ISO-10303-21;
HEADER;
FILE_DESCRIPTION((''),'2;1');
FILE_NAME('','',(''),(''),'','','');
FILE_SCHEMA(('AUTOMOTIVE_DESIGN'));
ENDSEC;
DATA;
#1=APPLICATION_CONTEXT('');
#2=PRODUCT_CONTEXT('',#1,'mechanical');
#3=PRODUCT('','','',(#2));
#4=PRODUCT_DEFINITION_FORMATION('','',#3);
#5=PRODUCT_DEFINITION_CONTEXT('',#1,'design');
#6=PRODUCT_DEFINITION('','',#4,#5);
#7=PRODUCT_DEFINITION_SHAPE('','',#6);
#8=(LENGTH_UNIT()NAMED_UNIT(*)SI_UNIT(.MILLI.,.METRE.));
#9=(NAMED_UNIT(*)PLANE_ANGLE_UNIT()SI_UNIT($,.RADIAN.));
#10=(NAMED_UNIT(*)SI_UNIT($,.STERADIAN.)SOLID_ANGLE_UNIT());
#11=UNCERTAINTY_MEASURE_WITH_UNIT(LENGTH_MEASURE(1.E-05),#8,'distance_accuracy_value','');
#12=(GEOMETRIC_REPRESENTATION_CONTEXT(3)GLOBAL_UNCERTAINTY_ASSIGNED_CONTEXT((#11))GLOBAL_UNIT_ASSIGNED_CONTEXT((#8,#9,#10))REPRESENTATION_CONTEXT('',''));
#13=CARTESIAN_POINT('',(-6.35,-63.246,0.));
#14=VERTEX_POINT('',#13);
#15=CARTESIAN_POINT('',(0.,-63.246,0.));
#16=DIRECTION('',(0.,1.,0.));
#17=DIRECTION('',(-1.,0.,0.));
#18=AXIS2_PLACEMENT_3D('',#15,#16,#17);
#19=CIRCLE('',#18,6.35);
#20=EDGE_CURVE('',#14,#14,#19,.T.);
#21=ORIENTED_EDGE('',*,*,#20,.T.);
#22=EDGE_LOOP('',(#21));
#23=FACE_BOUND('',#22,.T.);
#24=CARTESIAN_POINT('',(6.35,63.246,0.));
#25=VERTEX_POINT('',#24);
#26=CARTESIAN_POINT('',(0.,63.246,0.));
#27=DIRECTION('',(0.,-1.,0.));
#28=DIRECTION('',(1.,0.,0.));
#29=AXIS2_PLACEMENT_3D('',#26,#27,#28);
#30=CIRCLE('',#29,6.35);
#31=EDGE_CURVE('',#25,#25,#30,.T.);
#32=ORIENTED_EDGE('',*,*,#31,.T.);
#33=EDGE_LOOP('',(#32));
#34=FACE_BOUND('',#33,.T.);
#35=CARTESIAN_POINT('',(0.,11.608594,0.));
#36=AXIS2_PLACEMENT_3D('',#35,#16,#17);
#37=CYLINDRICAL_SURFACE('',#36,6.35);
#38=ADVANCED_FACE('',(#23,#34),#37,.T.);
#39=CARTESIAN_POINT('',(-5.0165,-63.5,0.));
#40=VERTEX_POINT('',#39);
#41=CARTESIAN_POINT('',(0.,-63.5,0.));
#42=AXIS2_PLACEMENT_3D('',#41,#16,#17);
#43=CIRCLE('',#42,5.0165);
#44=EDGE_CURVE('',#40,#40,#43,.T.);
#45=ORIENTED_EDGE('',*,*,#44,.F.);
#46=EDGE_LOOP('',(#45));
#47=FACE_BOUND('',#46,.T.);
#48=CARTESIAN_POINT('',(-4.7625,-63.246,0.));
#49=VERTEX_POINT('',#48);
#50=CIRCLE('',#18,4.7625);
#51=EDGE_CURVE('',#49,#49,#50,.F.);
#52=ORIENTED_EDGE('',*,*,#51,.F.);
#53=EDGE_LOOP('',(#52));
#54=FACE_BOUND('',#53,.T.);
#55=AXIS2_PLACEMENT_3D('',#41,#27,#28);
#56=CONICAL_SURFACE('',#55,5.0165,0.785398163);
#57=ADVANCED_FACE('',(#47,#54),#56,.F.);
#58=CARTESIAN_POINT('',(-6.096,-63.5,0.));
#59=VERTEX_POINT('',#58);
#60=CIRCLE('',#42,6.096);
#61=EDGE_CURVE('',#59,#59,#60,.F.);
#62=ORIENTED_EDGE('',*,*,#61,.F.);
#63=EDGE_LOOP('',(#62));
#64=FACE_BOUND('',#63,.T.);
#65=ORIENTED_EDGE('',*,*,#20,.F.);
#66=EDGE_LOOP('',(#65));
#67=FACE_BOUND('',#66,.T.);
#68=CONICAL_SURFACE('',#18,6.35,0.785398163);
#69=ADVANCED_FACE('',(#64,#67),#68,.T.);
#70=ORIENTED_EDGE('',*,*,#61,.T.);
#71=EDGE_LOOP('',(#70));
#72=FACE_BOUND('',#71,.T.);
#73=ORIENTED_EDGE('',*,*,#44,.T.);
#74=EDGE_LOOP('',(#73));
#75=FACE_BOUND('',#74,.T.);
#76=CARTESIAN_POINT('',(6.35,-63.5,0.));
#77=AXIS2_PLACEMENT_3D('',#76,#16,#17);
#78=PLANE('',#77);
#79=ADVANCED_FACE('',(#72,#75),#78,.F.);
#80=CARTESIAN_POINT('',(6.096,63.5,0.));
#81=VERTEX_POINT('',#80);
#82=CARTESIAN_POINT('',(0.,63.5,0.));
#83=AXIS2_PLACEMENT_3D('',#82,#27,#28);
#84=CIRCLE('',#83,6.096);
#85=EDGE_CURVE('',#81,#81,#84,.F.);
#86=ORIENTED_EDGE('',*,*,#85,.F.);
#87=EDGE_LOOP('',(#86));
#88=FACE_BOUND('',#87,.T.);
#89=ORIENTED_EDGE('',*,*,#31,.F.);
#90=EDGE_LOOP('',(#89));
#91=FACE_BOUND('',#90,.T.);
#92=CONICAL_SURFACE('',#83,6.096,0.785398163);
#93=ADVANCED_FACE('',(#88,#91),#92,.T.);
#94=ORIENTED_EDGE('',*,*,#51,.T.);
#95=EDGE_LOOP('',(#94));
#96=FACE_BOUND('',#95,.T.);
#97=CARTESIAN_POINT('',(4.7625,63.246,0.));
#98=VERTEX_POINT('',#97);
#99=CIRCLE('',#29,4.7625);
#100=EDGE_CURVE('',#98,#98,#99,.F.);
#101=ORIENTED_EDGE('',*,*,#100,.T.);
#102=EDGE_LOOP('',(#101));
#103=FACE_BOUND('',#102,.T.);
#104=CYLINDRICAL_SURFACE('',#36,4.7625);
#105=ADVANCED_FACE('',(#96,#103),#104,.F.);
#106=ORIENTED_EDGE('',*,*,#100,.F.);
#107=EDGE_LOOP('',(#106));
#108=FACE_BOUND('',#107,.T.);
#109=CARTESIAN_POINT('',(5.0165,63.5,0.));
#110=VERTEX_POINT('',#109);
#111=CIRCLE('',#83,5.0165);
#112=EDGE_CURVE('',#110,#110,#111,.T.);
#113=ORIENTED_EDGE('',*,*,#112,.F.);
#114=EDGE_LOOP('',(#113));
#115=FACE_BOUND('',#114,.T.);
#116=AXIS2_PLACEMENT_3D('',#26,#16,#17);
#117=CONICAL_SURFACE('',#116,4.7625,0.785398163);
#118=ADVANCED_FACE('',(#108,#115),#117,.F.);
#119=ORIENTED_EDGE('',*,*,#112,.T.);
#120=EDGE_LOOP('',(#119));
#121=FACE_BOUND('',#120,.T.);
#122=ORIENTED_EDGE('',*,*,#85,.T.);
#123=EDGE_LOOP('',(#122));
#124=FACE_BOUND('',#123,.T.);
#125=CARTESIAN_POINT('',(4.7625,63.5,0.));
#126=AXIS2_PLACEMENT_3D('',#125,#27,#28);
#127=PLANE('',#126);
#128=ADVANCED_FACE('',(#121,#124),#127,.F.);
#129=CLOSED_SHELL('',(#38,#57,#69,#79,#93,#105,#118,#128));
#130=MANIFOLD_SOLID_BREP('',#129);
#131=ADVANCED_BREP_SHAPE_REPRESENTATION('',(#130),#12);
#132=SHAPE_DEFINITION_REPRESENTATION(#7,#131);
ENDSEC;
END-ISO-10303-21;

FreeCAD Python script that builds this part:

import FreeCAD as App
import Part
import Sketcher
from FreeCAD import Vector
Q = App.Units.Quantity


def edges_at(feature, points):
    """Names of the edges that pass closest to the given points."""
    edges = feature.Shape.Edges
    near = lambda p: min(range(len(edges)), key=lambda i: edges[i].distToShape(Part.Vertex(*p))[0])
    return sorted({f"Edge{near(p) + 1}" for p in points})

doc = App.newDocument("Part")
body = doc.addObject("PartDesign::Body", "Body")

sketch1 = body.newObject("Sketcher::SketchObject", "Sketch")
sketch1.AttachmentSupport = (doc.getObject("XY_Plane"), [""])
sketch1.MapMode = "FlatFace"
sketch1.addGeometry([
    Part.LineSegment(Vector(4.8, 63.5, 0), Vector(4.8, -63.5, 0)),
    Part.LineSegment(Vector(4.8, -63.5, 0), Vector(6.3, -63.5, 0)),
    Part.LineSegment(Vector(6.3, -63.5, 0), Vector(6.3, 63.5, 0)),
    Part.LineSegment(Vector(6.3, 63.5, 0), Vector(4.8, 63.5, 0)),
], False)
sketch1.addConstraint([
    Sketcher.Constraint("Coincident", 0, 2, 1, 1),
    Sketcher.Constraint("Coincident", 1, 2, 2, 1),
    Sketcher.Constraint("Coincident", 2, 2, 3, 1),
    Sketcher.Constraint("Coincident", 3, 2, 0, 1),
    Sketcher.Constraint("Vertical", 0),
    Sketcher.Constraint("Horizontal", 1),
    Sketcher.Constraint("Vertical", 2),
    Sketcher.Constraint("Horizontal", 3),
    Sketcher.Constraint("DistanceY", 0, 2, 0, 1, Q("5 in")),
    Sketcher.Constraint("DistanceY", 0, 2, -1, 1, Q("2.5 in")),
    Sketcher.Constraint("DistanceX", 1, 1, 1, 2, Q("0.0625 in")),
    Sketcher.Constraint("DistanceX", -1, 1, 1, 2, Q("0.25 in")),
])
revolution = body.newObject("PartDesign::Revolution", "Revolution")
revolution.Profile = sketch1
revolution.ReferenceAxis = (sketch1, ["V_Axis"])
revolution.Angle = 360
doc.recompute()

chamfer = body.newObject("PartDesign::Chamfer", "Chamfer")
chamfer.Base = (revolution, edges_at(revolution, [
    (-4.763, -63.5, 0),
    (-6.35, -63.5, 0),
    (-6.35, 63.5, 0),
    (-4.763, 63.5, 0),
]))
chamfer.Size = Q("0.01 in")

doc.recompute()
